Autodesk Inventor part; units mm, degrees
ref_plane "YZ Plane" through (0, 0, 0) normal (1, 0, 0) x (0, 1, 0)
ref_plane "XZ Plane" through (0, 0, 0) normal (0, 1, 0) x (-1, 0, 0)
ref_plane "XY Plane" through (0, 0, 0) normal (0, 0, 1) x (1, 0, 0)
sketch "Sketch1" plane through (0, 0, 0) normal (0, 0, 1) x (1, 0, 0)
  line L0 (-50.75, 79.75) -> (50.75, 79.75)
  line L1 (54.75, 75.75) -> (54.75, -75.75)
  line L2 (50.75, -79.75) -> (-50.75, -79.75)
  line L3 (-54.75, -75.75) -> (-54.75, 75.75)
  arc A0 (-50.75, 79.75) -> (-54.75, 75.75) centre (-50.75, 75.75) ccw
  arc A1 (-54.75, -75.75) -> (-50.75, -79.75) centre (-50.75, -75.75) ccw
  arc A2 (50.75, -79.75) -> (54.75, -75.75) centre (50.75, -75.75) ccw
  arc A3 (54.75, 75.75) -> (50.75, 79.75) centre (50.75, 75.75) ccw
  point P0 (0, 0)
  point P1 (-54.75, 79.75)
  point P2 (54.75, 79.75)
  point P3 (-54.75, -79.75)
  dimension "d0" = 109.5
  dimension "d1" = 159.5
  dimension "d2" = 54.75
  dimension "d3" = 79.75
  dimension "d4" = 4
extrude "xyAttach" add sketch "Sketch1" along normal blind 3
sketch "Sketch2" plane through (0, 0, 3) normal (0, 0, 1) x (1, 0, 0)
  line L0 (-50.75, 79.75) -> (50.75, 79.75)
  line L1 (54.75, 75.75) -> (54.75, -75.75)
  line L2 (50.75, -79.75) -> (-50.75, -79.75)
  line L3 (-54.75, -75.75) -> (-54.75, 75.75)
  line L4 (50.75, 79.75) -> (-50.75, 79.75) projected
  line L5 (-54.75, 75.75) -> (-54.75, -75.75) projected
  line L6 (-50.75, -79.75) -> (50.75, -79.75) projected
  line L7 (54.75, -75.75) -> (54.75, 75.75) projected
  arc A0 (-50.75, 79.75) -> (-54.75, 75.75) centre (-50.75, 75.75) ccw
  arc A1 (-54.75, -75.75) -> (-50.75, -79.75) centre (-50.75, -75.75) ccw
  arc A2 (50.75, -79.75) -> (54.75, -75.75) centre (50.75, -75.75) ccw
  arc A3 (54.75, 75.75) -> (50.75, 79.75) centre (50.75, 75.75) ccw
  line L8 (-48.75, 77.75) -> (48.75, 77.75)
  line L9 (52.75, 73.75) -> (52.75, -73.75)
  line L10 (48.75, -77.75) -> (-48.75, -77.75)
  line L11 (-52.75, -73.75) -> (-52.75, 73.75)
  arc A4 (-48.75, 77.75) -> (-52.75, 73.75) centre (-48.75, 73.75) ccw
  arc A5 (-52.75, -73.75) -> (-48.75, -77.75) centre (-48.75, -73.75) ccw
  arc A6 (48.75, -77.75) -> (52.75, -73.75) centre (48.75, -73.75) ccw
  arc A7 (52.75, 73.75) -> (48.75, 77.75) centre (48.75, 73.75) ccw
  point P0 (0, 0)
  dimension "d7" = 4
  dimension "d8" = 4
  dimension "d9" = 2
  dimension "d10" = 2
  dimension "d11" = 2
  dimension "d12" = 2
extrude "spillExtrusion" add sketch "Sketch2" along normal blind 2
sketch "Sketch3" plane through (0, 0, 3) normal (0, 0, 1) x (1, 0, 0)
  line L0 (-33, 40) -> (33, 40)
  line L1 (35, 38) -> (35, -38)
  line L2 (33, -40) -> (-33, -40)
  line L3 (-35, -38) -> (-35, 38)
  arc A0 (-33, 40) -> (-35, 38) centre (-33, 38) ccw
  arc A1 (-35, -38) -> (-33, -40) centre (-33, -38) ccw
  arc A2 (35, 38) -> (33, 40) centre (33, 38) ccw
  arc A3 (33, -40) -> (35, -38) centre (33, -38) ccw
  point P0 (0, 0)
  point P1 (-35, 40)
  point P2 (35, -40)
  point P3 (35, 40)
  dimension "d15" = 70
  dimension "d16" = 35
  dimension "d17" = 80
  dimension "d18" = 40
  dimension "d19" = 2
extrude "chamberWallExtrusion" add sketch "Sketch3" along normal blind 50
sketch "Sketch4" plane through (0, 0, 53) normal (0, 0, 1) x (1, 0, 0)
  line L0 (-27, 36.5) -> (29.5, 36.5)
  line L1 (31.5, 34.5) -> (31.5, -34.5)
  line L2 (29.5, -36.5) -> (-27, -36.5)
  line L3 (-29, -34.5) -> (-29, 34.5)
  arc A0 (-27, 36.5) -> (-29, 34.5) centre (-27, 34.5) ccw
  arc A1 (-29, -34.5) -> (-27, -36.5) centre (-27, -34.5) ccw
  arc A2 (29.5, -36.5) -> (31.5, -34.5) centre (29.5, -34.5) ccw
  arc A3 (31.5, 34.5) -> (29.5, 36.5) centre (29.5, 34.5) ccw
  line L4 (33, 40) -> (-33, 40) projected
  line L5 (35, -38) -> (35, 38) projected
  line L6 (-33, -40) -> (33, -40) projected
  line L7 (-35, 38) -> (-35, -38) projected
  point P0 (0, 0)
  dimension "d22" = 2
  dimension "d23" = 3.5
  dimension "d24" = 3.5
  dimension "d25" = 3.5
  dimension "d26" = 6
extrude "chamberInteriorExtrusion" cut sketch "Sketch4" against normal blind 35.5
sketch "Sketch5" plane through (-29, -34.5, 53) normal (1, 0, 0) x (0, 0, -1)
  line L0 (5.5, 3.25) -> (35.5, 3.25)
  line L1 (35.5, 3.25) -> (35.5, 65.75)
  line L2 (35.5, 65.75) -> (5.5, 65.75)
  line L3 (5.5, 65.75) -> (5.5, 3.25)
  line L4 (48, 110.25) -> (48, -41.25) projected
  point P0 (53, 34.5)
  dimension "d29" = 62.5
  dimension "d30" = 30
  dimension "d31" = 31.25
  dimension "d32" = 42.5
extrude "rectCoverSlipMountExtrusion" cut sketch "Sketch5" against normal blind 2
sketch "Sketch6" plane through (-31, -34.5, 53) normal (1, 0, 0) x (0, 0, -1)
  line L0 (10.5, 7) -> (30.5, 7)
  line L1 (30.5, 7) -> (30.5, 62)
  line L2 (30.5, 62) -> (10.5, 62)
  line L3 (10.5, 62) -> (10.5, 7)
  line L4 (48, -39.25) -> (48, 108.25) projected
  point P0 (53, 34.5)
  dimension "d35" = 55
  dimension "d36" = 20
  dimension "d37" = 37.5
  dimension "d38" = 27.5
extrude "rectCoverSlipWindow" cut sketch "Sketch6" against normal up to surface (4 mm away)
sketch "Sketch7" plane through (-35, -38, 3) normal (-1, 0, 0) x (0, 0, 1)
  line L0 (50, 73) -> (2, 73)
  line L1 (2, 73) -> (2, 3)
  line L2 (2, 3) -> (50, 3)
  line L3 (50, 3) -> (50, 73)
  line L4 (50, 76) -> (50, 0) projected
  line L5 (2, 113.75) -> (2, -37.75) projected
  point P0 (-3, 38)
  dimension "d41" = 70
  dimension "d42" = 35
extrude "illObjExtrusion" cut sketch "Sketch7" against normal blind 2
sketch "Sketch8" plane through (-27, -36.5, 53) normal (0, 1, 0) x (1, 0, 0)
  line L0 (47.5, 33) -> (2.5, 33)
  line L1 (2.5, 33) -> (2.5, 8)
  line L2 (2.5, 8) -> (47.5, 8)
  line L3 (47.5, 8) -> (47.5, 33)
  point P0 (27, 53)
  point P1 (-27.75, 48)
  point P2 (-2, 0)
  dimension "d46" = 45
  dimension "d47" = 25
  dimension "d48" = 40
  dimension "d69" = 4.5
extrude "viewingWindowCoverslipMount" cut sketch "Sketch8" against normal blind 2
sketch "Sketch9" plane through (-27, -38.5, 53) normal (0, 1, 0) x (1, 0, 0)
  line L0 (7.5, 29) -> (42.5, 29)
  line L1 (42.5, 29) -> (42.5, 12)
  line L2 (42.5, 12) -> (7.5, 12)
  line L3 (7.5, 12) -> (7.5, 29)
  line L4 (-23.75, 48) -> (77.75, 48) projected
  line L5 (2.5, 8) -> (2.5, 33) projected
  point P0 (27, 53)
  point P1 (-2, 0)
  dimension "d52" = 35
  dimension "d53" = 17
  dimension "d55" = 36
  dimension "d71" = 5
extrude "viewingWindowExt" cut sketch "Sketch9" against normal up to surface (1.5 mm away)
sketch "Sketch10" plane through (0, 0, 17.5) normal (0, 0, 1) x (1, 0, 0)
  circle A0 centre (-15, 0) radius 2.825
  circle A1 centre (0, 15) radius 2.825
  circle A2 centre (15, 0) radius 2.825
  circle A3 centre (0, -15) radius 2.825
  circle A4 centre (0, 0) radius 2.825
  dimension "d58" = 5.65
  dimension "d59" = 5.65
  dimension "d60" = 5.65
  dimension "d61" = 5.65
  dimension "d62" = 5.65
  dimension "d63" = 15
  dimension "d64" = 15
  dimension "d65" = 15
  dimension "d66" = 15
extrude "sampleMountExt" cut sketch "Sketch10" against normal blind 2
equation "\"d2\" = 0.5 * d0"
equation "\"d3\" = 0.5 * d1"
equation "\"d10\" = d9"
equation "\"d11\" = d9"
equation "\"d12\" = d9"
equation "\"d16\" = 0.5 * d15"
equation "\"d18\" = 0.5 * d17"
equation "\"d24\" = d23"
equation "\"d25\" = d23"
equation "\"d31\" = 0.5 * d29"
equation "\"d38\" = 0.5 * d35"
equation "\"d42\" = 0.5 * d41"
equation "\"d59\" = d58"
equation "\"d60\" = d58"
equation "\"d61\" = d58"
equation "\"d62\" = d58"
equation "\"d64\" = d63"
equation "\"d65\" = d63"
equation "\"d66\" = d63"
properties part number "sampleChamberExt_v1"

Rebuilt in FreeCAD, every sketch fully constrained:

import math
import FreeCAD as App
import Part
import Sketcher

V = App.Vector


def add_polygon(sketch, points):
    """Adds a closed chain of lines whose ends are joined by coincident constraints."""
    first, n = sketch.GeometryCount, len(points)
    for a, b in zip(points, points[1:] + points[:1]):
        sketch.addGeometry(Part.LineSegment(App.Vector(*a, 0), App.Vector(*b, 0)), False)
    for i in range(n):
        sketch.addConstraint(Sketcher.Constraint("Coincident", first + i, 2, first + (i + 1) % n, 1))

doc = App.newDocument("Part")
body = doc.addObject("PartDesign::Body", "Body")

sketch1 = body.newObject("Sketcher::SketchObject", "Sketch")
sketch1.AttachmentSupport = (doc.getObject("XY_Plane"), [""])
sketch1.MapMode = "FlatFace"
sketch1.addGeometry(Part.LineSegment(V(50.8, 79.8, 0), V(-50.8, 79.8, 0)), False)
sketch1.addGeometry(Part.ArcOfCircle(Part.Circle(V(-50.8, 75.8, 0), V(0, 0, 1), 4), math.radians(90), math.radians(180)), False)
sketch1.addGeometry(Part.LineSegment(V(-54.8, 75.8, 0), V(-54.8, -75.8, 0)), False)
sketch1.addGeometry(Part.ArcOfCircle(Part.Circle(V(-50.8, -75.8, 0), V(0, 0, 1), 4), math.radians(180), math.radians(270)), False)
sketch1.addGeometry(Part.LineSegment(V(-50.8, -79.8, 0), V(50.8, -79.8, 0)), False)
sketch1.addGeometry(Part.ArcOfCircle(Part.Circle(V(50.8, -75.8, 0), V(0, 0, 1), 4), math.radians(-90), math.radians(0)), False)
sketch1.addGeometry(Part.LineSegment(V(54.8, -75.8, 0), V(54.8, 75.8, 0)), False)
sketch1.addGeometry(Part.ArcOfCircle(Part.Circle(V(50.8, 75.8, 0), V(0, 0, 1), 4), math.radians(0), math.radians(90)), False)
sketch1.addConstraint(Sketcher.Constraint("Tangent", 0, 2, 1, 1))
sketch1.addConstraint(Sketcher.Constraint("Tangent", 1, 2, 2, 1))
sketch1.addConstraint(Sketcher.Constraint("Tangent", 2, 2, 3, 1))
sketch1.addConstraint(Sketcher.Constraint("Tangent", 3, 2, 4, 1))
sketch1.addConstraint(Sketcher.Constraint("Tangent", 4, 2, 5, 1))
sketch1.addConstraint(Sketcher.Constraint("Tangent", 5, 2, 6, 1))
sketch1.addConstraint(Sketcher.Constraint("Tangent", 6, 2, 7, 1))
sketch1.addConstraint(Sketcher.Constraint("Tangent", 7, 2, 0, 1))
sketch1.addConstraint(Sketcher.Constraint("Horizontal", 0))
sketch1.addConstraint(Sketcher.Constraint("Vertical", 2))
sketch1.addConstraint(Sketcher.Constraint("Horizontal", 4))
sketch1.addConstraint(Sketcher.Constraint("Vertical", 6))
sketch1.addConstraint(Sketcher.Constraint("Equal", 1, 3))
sketch1.addConstraint(Sketcher.Constraint("Equal", 3, 5))
sketch1.addConstraint(Sketcher.Constraint("Equal", 5, 7))
sketch1.addConstraint(Sketcher.Constraint("Symmetric", 1, 3, 5, 3, -1, 1))
sketch1.addConstraint(Sketcher.Constraint("Radius", 1, 4.0))
sketch1.addConstraint(Sketcher.Constraint("DistanceX", 2, 2, 5, 2, 109.5))
sketch1.addConstraint(Sketcher.Constraint("DistanceY", -1, 1, 0, 2, 79.75))
pad1 = body.newObject("PartDesign::Pad", "Pad")
pad1.Profile = sketch1
pad1.Length = 3

sketch2 = body.newObject("Sketcher::SketchObject", "Sketch001")
sketch2.AttachmentSupport = (doc.getObject("XY_Plane"), [""])
sketch2.MapMode = "FlatFace"
sketch2.AttachmentOffset = App.Placement(V(0, 0, 3), App.Rotation())
sketch2.addGeometry(Part.LineSegment(V(50.8, 79.8, 0), V(-50.8, 79.8, 0)), False)
sketch2.addGeometry(Part.ArcOfCircle(Part.Circle(V(-50.8, 75.8, 0), V(0, 0, 1), 4), math.radians(90), math.radians(180)), False)
sketch2.addGeometry(Part.LineSegment(V(-54.8, 75.8, 0), V(-54.8, -75.8, 0)), False)
sketch2.addGeometry(Part.ArcOfCircle(Part.Circle(V(-50.8, -75.8, 0), V(0, 0, 1), 4), math.radians(180), math.radians(270)), False)
sketch2.addGeometry(Part.LineSegment(V(-50.8, -79.8, 0), V(50.8, -79.8, 0)), False)
sketch2.addGeometry(Part.ArcOfCircle(Part.Circle(V(50.8, -75.8, 0), V(0, 0, 1), 4), math.radians(-90), math.radians(0)), False)
sketch2.addGeometry(Part.LineSegment(V(54.8, -75.8, 0), V(54.8, 75.8, 0)), False)
sketch2.addGeometry(Part.ArcOfCircle(Part.Circle(V(50.8, 75.8, 0), V(0, 0, 1), 4), math.radians(0), math.radians(90)), False)
sketch2.addGeometry(Part.ArcOfCircle(Part.Circle(V(-48.8, 73.8, 0), V(0, 0, 1), 4), math.radians(90), math.radians(180)), False)
sketch2.addGeometry(Part.LineSegment(V(-48.8, 77.8, 0), V(48.8, 77.8, 0)), False)
sketch2.addGeometry(Part.ArcOfCircle(Part.Circle(V(48.8, 73.8, 0), V(0, 0, 1), 4), math.radians(0), math.radians(90)), False)
sketch2.addGeometry(Part.LineSegment(V(52.8, 73.8, 0), V(52.8, -73.8, 0)), False)
sketch2.addGeometry(Part.ArcOfCircle(Part.Circle(V(48.8, -73.8, 0), V(0, 0, 1), 4), math.radians(-90), math.radians(0)), False)
sketch2.addGeometry(Part.LineSegment(V(48.8, -77.8, 0), V(-48.8, -77.8, 0)), False)
sketch2.addGeometry(Part.ArcOfCircle(Part.Circle(V(-48.8, -73.8, 0), V(0, 0, 1), 4), math.radians(180), math.radians(270)), False)
sketch2.addGeometry(Part.LineSegment(V(-52.8, -73.8, 0), V(-52.8, 73.8, 0)), False)
sketch2.addConstraint(Sketcher.Constraint("Tangent", 0, 2, 1, 1))
sketch2.addConstraint(Sketcher.Constraint("Tangent", 1, 2, 2, 1))
sketch2.addConstraint(Sketcher.Constraint("Tangent", 2, 2, 3, 1))
sketch2.addConstraint(Sketcher.Constraint("Tangent", 3, 2, 4, 1))
sketch2.addConstraint(Sketcher.Constraint("Tangent", 4, 2, 5, 1))
sketch2.addConstraint(Sketcher.Constraint("Tangent", 5, 2, 6, 1))
sketch2.addConstraint(Sketcher.Constraint("Tangent", 6, 2, 7, 1))
sketch2.addConstraint(Sketcher.Constraint("Tangent", 7, 2, 0, 1))
sketch2.addConstraint(Sketcher.Constraint("Tangent", 8, 1, 9, 1))
sketch2.addConstraint(Sketcher.Constraint("Tangent", 9, 2, 10, 2))
sketch2.addConstraint(Sketcher.Constraint("Tangent", 10, 1, 11, 1))
sketch2.addConstraint(Sketcher.Constraint("Tangent", 11, 2, 12, 2))
sketch2.addConstraint(Sketcher.Constraint("Tangent", 12, 1, 13, 1))
sketch2.addConstraint(Sketcher.Constraint("Tangent", 13, 2, 14, 2))
sketch2.addConstraint(Sketcher.Constraint("Tangent", 14, 1, 15, 1))
sketch2.addConstraint(Sketcher.Constraint("Tangent", 15, 2, 8, 2))
sketch2.addConstraint(Sketcher.Constraint("Horizontal", 0))
sketch2.addConstraint(Sketcher.Constraint("Vertical", 2))
sketch2.addConstraint(Sketcher.Constraint("Horizontal", 4))
sketch2.addConstraint(Sketcher.Constraint("Vertical", 6))
sketch2.addConstraint(Sketcher.Constraint("Horizontal", 9))
sketch2.addConstraint(Sketcher.Constraint("Vertical", 11))
sketch2.addConstraint(Sketcher.Constraint("Horizontal", 13))
sketch2.addConstraint(Sketcher.Constraint("Vertical", 15))
sketch2.addConstraint(Sketcher.Constraint("Equal", 1, 3))
sketch2.addConstraint(Sketcher.Constraint("Equal", 3, 5))
sketch2.addConstraint(Sketcher.Constraint("Equal", 5, 7))
sketch2.addConstraint(Sketcher.Constraint("Equal", 7, 8))
sketch2.addConstraint(Sketcher.Constraint("Equal", 8, 10))
sketch2.addConstraint(Sketcher.Constraint("Equal", 10, 12))
sketch2.addConstraint(Sketcher.Constraint("Equal", 12, 14))
sketch2.addConstraint(Sketcher.Constraint("Symmetric", 1, 3, 5, 3, -1, 1))
sketch2.addConstraint(Sketcher.Constraint("Symmetric", 8, 3, 12, 3, -1, 1))
sketch2.addConstraint(Sketcher.Constraint("Radius", 1, 4.0))
sketch2.addConstraint(Sketcher.Constraint("DistanceX", 1, 3, 8, 3, 2.0))
sketch2.addConstraint(Sketcher.Constraint("DistanceY", 8, 3, 1, 3, 2.0))
sketch2.addConstraint(Sketcher.Constraint("DistanceX", 0, 2, 0, 1, 101.5))
sketch2.addConstraint(Sketcher.Constraint("DistanceY", 2, 2, 2, 1, 151.5))
pad2 = body.newObject("PartDesign::Pad", "Pad001")
pad2.Profile = sketch2
pad2.Length = 2

sketch3 = body.newObject("Sketcher::SketchObject", "Sketch002")
sketch3.AttachmentSupport = (doc.getObject("XY_Plane"), [""])
sketch3.MapMode = "FlatFace"
sketch3.AttachmentOffset = App.Placement(V(0, 0, 3), App.Rotation())
sketch3.addGeometry(Part.LineSegment(V(33, 40, 0), V(-33, 40, 0)), False)
sketch3.addGeometry(Part.ArcOfCircle(Part.Circle(V(-33, 38, 0), V(0, 0, 1), 2), math.radians(90), math.radians(180)), False)
sketch3.addGeometry(Part.LineSegment(V(-35, 38, 0), V(-35, -38, 0)), False)
sketch3.addGeometry(Part.ArcOfCircle(Part.Circle(V(-33, -38, 0), V(0, 0, 1), 2), math.radians(180), math.radians(270)), False)
sketch3.addGeometry(Part.LineSegment(V(-33, -40, 0), V(33, -40, 0)), False)
sketch3.addGeometry(Part.ArcOfCircle(Part.Circle(V(33, -38, 0), V(0, 0, 1), 2), math.radians(-90), math.radians(0)), False)
sketch3.addGeometry(Part.LineSegment(V(35, -38, 0), V(35, 38, 0)), False)
sketch3.addGeometry(Part.ArcOfCircle(Part.Circle(V(33, 38, 0), V(0, 0, 1), 2), math.radians(0), math.radians(90)), False)
sketch3.addConstraint(Sketcher.Constraint("Tangent", 0, 2, 1, 1))
sketch3.addConstraint(Sketcher.Constraint("Tangent", 1, 2, 2, 1))
sketch3.addConstraint(Sketcher.Constraint("Tangent", 2, 2, 3, 1))
sketch3.addConstraint(Sketcher.Constraint("Tangent", 3, 2, 4, 1))
sketch3.addConstraint(Sketcher.Constraint("Tangent", 4, 2, 5, 1))
sketch3.addConstraint(Sketcher.Constraint("Tangent", 5, 2, 6, 1))
sketch3.addConstraint(Sketcher.Constraint("Tangent", 6, 2, 7, 1))
sketch3.addConstraint(Sketcher.Constraint("Tangent", 7, 2, 0, 1))
sketch3.addConstraint(Sketcher.Constraint("Horizontal", 0))
sketch3.addConstraint(Sketcher.Constraint("Vertical", 2))
sketch3.addConstraint(Sketcher.Constraint("Horizontal", 4))
sketch3.addConstraint(Sketcher.Constraint("Vertical", 6))
sketch3.addConstraint(Sketcher.Constraint("Equal", 1, 3))
sketch3.addConstraint(Sketcher.Constraint("Equal", 3, 5))
sketch3.addConstraint(Sketcher.Constraint("Equal", 5, 7))
sketch3.addConstraint(Sketcher.Constraint("Symmetric", 1, 3, 5, 3, -1, 1))
sketch3.addConstraint(Sketcher.Constraint("Radius", 1, 2.0))
sketch3.addConstraint(Sketcher.Constraint("DistanceY", -1, 1, 0, 2, 40.0))
sketch3.addConstraint(Sketcher.Constraint("DistanceX", 1, 2, -1, 1, 35.0))
pad3 = body.newObject("PartDesign::Pad", "Pad002")
pad3.Profile = sketch3
pad3.Length = 50

sketch4 = body.newObject("Sketcher::SketchObject", "Sketch003")
sketch4.AttachmentSupport = (doc.getObject("XY_Plane"), [""])
sketch4.MapMode = "FlatFace"
sketch4.AttachmentOffset = App.Placement(V(0, 0, 53), App.Rotation())
sketch4.addGeometry(Part.LineSegment(V(29.5, 36.5, 0), V(-27, 36.5, 0)), False)
sketch4.addGeometry(Part.ArcOfCircle(Part.Circle(V(-27, 34.5, 0), V(0, 0, 1), 2), math.radians(90), math.radians(180)), False)
sketch4.addGeometry(Part.LineSegment(V(-29, 34.5, 0), V(-29, -34.5, 0)), False)
sketch4.addGeometry(Part.ArcOfCircle(Part.Circle(V(-27, -34.5, 0), V(0, 0, 1), 2), math.radians(180), math.radians(270)), False)
sketch4.addGeometry(Part.LineSegment(V(-27, -36.5, 0), V(29.5, -36.5, 0)), False)
sketch4.addGeometry(Part.ArcOfCircle(Part.Circle(V(29.5, -34.5, 0), V(0, 0, 1), 2), math.radians(-90), math.radians(0)), False)
sketch4.addGeometry(Part.LineSegment(V(31.5, -34.5, 0), V(31.5, 34.5, 0)), False)
sketch4.addGeometry(Part.ArcOfCircle(Part.Circle(V(29.5, 34.5, 0), V(0, 0, 1), 2), math.radians(0), math.radians(90)), False)
sketch4.addConstraint(Sketcher.Constraint("Tangent", 0, 2, 1, 1))
sketch4.addConstraint(Sketcher.Constraint("Tangent", 1, 2, 2, 1))
sketch4.addConstraint(Sketcher.Constraint("Tangent", 2, 2, 3, 1))
sketch4.addConstraint(Sketcher.Constraint("Tangent", 3, 2, 4, 1))
sketch4.addConstraint(Sketcher.Constraint("Tangent", 4, 2, 5, 1))
sketch4.addConstraint(Sketcher.Constraint("Tangent", 5, 2, 6, 1))
sketch4.addConstraint(Sketcher.Constraint("Tangent", 6, 2, 7, 1))
sketch4.addConstraint(Sketcher.Constraint("Tangent", 7, 2, 0, 1))
sketch4.addConstraint(Sketcher.Constraint("Horizontal", 0))
sketch4.addConstraint(Sketcher.Constraint("Vertical", 2))
sketch4.addConstraint(Sketcher.Constraint("Horizontal", 4))
sketch4.addConstraint(Sketcher.Constraint("Vertical", 6))
sketch4.addConstraint(Sketcher.Constraint("Equal", 1, 3))
sketch4.addConstraint(Sketcher.Constraint("Equal", 3, 5))
sketch4.addConstraint(Sketcher.Constraint("Equal", 5, 7))
sketch4.addConstraint(Sketcher.Constraint("Radius", 1, 2.0))
sketch4.addConstraint(Sketcher.Constraint("DistanceY", 2, 2, 2, 1, 69.0))
sketch4.addConstraint(Sketcher.Constraint("DistanceX", 0, 2, 0, 1, 56.5))
sketch4.addConstraint(Sketcher.Constraint("DistanceX", 1, 3, -1, 1, 27.0))
sketch4.addConstraint(Sketcher.Constraint("DistanceY", -1, 1, 1, 3, 34.5))
pocket1 = body.newObject("PartDesign::Pocket", "Pocket")
pocket1.Profile = sketch4
pocket1.Length = 35.5

sketch5 = body.newObject("Sketcher::SketchObject", "Sketch004")
sketch5.AttachmentSupport = (doc.getObject("YZ_Plane"), [""])
sketch5.MapMode = "FlatFace"
sketch5.AttachmentOffset = App.Placement(V(0, 0, -29), App.Rotation())
add_polygon(sketch5, [(31, 48), (-31, 48), (-31, 18), (31, 18)])
sketch5.addConstraint(Sketcher.Constraint("Horizontal", 0))
sketch5.addConstraint(Sketcher.Constraint("Vertical", 1))
sketch5.addConstraint(Sketcher.Constraint("Horizontal", 2))
sketch5.addConstraint(Sketcher.Constraint("Vertical", 3))
sketch5.addConstraint(Sketcher.Constraint("DistanceY", 1, 2, 1, 1, 30.0))
sketch5.addConstraint(Sketcher.Constraint("DistanceX", 0, 2, 0, 1, 62.5))
sketch5.addConstraint(Sketcher.Constraint("DistanceX", 0, 2, -1, 1, 31.25))
sketch5.addConstraint(Sketcher.Constraint("DistanceY", -1, 1, 0, 2, 47.5))
pocket2 = body.newObject("PartDesign::Pocket", "Pocket001")
pocket2.Profile = sketch5
pocket2.Length = 2

sketch6 = body.newObject("Sketcher::SketchObject", "Sketch005")
sketch6.AttachmentSupport = (doc.getObject("YZ_Plane"), [""])
sketch6.MapMode = "FlatFace"
sketch6.AttachmentOffset = App.Placement(V(0, 0, -31), App.Rotation())
add_polygon(sketch6, [(28, 42), (-28, 42), (-28, 22), (28, 22)])
sketch6.addConstraint(Sketcher.Constraint("Horizontal", 0))
sketch6.addConstraint(Sketcher.Constraint("Vertical", 1))
sketch6.addConstraint(Sketcher.Constraint("Horizontal", 2))
sketch6.addConstraint(Sketcher.Constraint("Vertical", 3))
sketch6.addConstraint(Sketcher.Constraint("DistanceX", 0, 2, 0, 1, 55.0))
sketch6.addConstraint(Sketcher.Constraint("DistanceY", 1, 2, 1, 1, 20.0))
sketch6.addConstraint(Sketcher.Constraint("DistanceX", 0, 2, -1, 1, 27.5))
sketch6.addConstraint(Sketcher.Constraint("DistanceY", -1, 1, 0, 2, 42.5))
pocket3 = body.newObject("PartDesign::Pocket", "Pocket002")
pocket3.Profile = sketch6
pocket3.Length = 4

sketch7 = body.newObject("Sketcher::SketchObject", "Sketch006")
sketch7.AttachmentSupport = (doc.getObject("YZ_Plane"), [""])
sketch7.MapMode = "FlatFace"
sketch7.AttachmentOffset = App.Placement(V(0, 0, -35), App.Rotation())
add_polygon(sketch7, [(-35, 53), (35, 53), (35, 5), (-35, 5)])
sketch7.addConstraint(Sketcher.Constraint("Horizontal", 0))
sketch7.addConstraint(Sketcher.Constraint("Vertical", 1))
sketch7.addConstraint(Sketcher.Constraint("Horizontal", 2))
sketch7.addConstraint(Sketcher.Constraint("Vertical", 3))
sketch7.addConstraint(Sketcher.Constraint("DistanceX", 0, 1, 0, 2, 70.0))
sketch7.addConstraint(Sketcher.Constraint("DistanceX", -1, 1, 0, 2, 35.0))
sketch7.addConstraint(Sketcher.Constraint("DistanceY", 1, 2, 1, 1, 48.0))
sketch7.addConstraint(Sketcher.Constraint("DistanceY", -1, 1, 0, 2, 53.0))
pocket4 = body.newObject("PartDesign::Pocket", "Pocket003")
pocket4.Profile = sketch7
pocket4.Length = 2
pocket4.Reversed = True

sketch8 = body.newObject("Sketcher::SketchObject", "Sketch007")
sketch8.AttachmentSupport = (doc.getObject("XZ_Plane"), [""])
sketch8.MapMode = "FlatFace"
sketch8.AttachmentOffset = App.Placement(V(0, 0, 36.5), App.Rotation())
add_polygon(sketch8, [(20, 45), (20, 20), (-24, 20), (-24, 45)])
sketch8.addConstraint(Sketcher.Constraint("Vertical", 0))
sketch8.addConstraint(Sketcher.Constraint("Horizontal", 1))
sketch8.addConstraint(Sketcher.Constraint("Vertical", 2))
sketch8.addConstraint(Sketcher.Constraint("Horizontal", 3))
sketch8.addConstraint(Sketcher.Constraint("DistanceX", 1, 2, 1, 1, 45.0))
sketch8.addConstraint(Sketcher.Constraint("DistanceY", 0, 2, 0, 1, 25.0))
sketch8.addConstraint(Sketcher.Constraint("DistanceY", -1, 1, 2, 2, 45.0))
sketch8.addConstraint(Sketcher.Constraint("DistanceX", -1, 1, 0, 2, 20.5))
pocket5 = body.newObject("PartDesign::Pocket", "Pocket004")
pocket5.Profile = sketch8
pocket5.Length = 2
pocket5.Reversed = True

sketch9 = body.newObject("Sketcher::SketchObject", "Sketch008")
sketch9.AttachmentSupport = (doc.getObject("XZ_Plane"), [""])
sketch9.MapMode = "FlatFace"
sketch9.AttachmentOffset = App.Placement(V(0, 0, 38.5), App.Rotation())
add_polygon(sketch9, [(16, 24), (-20, 24), (-20, 41), (16, 41)])
sketch9.addConstraint(Sketcher.Constraint("Horizontal", 0))
sketch9.addConstraint(Sketcher.Constraint("Vertical", 1))
sketch9.addConstraint(Sketcher.Constraint("Horizontal", 2))
sketch9.addConstraint(Sketcher.Constraint("Vertical", 3))
sketch9.addConstraint(Sketcher.Constraint("DistanceX", 0, 2, 0, 1, 35.0))
sketch9.addConstraint(Sketcher.Constraint("DistanceY", 1, 1, 1, 2, 17.0))
sketch9.addConstraint(Sketcher.Constraint("DistanceY", -1, 1, 0, 2, 24.0))
sketch9.addConstraint(Sketcher.Constraint("DistanceX", 0, 2, -1, 1, 19.5))
pocket6 = body.newObject("PartDesign::Pocket", "Pocket005")
pocket6.Profile = sketch9
pocket6.Length = 1.5
pocket6.Reversed = True

sketch10 = body.newObject("Sketcher::SketchObject", "Sketch009")
sketch10.AttachmentSupport = (doc.getObject("XY_Plane"), [""])
sketch10.MapMode = "FlatFace"
sketch10.AttachmentOffset = App.Placement(V(0, 0, 17.5), App.Rotation())
sketch10.addGeometry(Part.Circle(V(-15, 0, 0), V(0, 0, 1), 2.8), False)
sketch10.addGeometry(Part.Circle(V(0, 15, 0), V(0, 0, 1), 2.8), False)
sketch10.addGeometry(Part.Circle(V(15, 0, 0), V(0, 0, 1), 2.8), False)
sketch10.addGeometry(Part.Circle(V(0, -15, 0), V(0, 0, 1), 2.8), False)
sketch10.addGeometry(Part.Circle(V(0, 0, 0), V(0, 0, 1), 2.8), False)
sketch10.addConstraint(Sketcher.Constraint("Coincident", 4, 3, -1, 1))
sketch10.addConstraint(Sketcher.Constraint("Equal", 0, 1))
sketch10.addConstraint(Sketcher.Constraint("Equal", 1, 2))
sketch10.addConstraint(Sketcher.Constraint("Equal", 2, 3))
sketch10.addConstraint(Sketcher.Constraint("Equal", 3, 4))
sketch10.addConstraint(Sketcher.Constraint("Symmetric", 0, 3, 2, 3, -1, 1))
sketch10.addConstraint(Sketcher.Constraint("Symmetric", 1, 3, 3, 3, -1, 1))
sketch10.addConstraint(Sketcher.Constraint("PointOnObject", 0, 3, -1))
sketch10.addConstraint(Sketcher.Constraint("PointOnObject", 1, 3, -2))
sketch10.addConstraint(Sketcher.Constraint("Diameter", 0, 5.65))
sketch10.addConstraint(Sketcher.Constraint("DistanceX", 0, 3, -1, 1, 15.0))
sketch10.addConstraint(Sketcher.Constraint("DistanceY", -1, 1, 1, 3, 15.0))
pocket7 = body.newObject("PartDesign::Pocket", "Pocket006")
pocket7.Profile = sketch10
pocket7.Length = 2

doc.recompute()
